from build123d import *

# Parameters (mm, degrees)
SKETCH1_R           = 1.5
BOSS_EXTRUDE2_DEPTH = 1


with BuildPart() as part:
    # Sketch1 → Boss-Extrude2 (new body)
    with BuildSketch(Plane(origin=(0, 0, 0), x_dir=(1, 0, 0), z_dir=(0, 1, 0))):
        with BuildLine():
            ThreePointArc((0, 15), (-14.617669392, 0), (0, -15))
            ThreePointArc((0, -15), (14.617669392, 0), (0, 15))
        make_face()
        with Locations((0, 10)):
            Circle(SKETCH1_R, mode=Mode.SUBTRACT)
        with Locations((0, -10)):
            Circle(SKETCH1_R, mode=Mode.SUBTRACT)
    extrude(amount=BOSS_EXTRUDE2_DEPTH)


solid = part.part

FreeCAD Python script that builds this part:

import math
import FreeCAD as App
import Part
import Sketcher
from FreeCAD import Vector
Q = App.Units.Quantity

doc = App.newDocument("Part")
params = doc.addObject("Spreadsheet::Sheet", "Params")
for row, (alias, value) in enumerate([
    ("sketch1_diameter", "3 mm"),
    ("pad1_length", "1 mm"),
], start=1):
    params.set(f"A{row}", alias)
    params.set(f"B{row}", "=" + value)
    params.setAlias(f"B{row}", alias)

body = doc.addObject("PartDesign::Body", "Body")

sketch1 = body.newObject("Sketcher::SketchObject", "Sketch")
sketch1.AttachmentSupport = (doc.getObject("XZ_Plane"), [""])
sketch1.MapMode = "FlatFace"
sketch1.addGeometry([
    Part.ArcOfCircle(Part.Circle(Vector(0.4, 0, 0), Vector(0, 0, 1), 15), math.radians(91), math.radians(269)),
    Part.ArcOfCircle(Part.Circle(Vector(-0.4, 0, 0), Vector(0, 0, 1), 15), math.radians(-89), math.radians(89)),
    Part.Circle(Vector(0, 10, 0), Vector(0, 0, 1), 1.5),
    Part.Circle(Vector(0, -10, 0), Vector(0, 0, 1), 1.5),
], False)
sketch1.addConstraint([
    Sketcher.Constraint("Coincident", 0, 1, 1, 2),
    Sketcher.Constraint("Coincident", 1, 1, 0, 2),
    Sketcher.Constraint("Equal", 0, 1),
    Sketcher.Constraint("Equal", 2, 3),
    Sketcher.Constraint("Symmetric", 0, 3, 1, 3, -1, 1),
    Sketcher.Constraint("Symmetric", 2, 3, 3, 3, -1, 1),
    Sketcher.Constraint("PointOnObject", 0, 3, -1),
    Sketcher.Constraint("PointOnObject", 2, 3, -2),
    Sketcher.Constraint("Diameter", 2, Q("3 mm")),
    Sketcher.Constraint("DistanceY", -1, 1, 2, 3, Q("10 mm")),
    Sketcher.Constraint("DistanceY", -1, 1, 0, 1, Q("15 mm")),
    Sketcher.Constraint("Radius", 0, Q("15.005 mm")),
])
sketch1.setExpression("Constraints[8]", "Params.sketch1_diameter")
pad1 = body.newObject("PartDesign::Pad", "Pad")
pad1.Profile = sketch1
pad1.setExpression("Length", "Params.pad1_length")
pad1.Reversed = True

doc.recompute()
